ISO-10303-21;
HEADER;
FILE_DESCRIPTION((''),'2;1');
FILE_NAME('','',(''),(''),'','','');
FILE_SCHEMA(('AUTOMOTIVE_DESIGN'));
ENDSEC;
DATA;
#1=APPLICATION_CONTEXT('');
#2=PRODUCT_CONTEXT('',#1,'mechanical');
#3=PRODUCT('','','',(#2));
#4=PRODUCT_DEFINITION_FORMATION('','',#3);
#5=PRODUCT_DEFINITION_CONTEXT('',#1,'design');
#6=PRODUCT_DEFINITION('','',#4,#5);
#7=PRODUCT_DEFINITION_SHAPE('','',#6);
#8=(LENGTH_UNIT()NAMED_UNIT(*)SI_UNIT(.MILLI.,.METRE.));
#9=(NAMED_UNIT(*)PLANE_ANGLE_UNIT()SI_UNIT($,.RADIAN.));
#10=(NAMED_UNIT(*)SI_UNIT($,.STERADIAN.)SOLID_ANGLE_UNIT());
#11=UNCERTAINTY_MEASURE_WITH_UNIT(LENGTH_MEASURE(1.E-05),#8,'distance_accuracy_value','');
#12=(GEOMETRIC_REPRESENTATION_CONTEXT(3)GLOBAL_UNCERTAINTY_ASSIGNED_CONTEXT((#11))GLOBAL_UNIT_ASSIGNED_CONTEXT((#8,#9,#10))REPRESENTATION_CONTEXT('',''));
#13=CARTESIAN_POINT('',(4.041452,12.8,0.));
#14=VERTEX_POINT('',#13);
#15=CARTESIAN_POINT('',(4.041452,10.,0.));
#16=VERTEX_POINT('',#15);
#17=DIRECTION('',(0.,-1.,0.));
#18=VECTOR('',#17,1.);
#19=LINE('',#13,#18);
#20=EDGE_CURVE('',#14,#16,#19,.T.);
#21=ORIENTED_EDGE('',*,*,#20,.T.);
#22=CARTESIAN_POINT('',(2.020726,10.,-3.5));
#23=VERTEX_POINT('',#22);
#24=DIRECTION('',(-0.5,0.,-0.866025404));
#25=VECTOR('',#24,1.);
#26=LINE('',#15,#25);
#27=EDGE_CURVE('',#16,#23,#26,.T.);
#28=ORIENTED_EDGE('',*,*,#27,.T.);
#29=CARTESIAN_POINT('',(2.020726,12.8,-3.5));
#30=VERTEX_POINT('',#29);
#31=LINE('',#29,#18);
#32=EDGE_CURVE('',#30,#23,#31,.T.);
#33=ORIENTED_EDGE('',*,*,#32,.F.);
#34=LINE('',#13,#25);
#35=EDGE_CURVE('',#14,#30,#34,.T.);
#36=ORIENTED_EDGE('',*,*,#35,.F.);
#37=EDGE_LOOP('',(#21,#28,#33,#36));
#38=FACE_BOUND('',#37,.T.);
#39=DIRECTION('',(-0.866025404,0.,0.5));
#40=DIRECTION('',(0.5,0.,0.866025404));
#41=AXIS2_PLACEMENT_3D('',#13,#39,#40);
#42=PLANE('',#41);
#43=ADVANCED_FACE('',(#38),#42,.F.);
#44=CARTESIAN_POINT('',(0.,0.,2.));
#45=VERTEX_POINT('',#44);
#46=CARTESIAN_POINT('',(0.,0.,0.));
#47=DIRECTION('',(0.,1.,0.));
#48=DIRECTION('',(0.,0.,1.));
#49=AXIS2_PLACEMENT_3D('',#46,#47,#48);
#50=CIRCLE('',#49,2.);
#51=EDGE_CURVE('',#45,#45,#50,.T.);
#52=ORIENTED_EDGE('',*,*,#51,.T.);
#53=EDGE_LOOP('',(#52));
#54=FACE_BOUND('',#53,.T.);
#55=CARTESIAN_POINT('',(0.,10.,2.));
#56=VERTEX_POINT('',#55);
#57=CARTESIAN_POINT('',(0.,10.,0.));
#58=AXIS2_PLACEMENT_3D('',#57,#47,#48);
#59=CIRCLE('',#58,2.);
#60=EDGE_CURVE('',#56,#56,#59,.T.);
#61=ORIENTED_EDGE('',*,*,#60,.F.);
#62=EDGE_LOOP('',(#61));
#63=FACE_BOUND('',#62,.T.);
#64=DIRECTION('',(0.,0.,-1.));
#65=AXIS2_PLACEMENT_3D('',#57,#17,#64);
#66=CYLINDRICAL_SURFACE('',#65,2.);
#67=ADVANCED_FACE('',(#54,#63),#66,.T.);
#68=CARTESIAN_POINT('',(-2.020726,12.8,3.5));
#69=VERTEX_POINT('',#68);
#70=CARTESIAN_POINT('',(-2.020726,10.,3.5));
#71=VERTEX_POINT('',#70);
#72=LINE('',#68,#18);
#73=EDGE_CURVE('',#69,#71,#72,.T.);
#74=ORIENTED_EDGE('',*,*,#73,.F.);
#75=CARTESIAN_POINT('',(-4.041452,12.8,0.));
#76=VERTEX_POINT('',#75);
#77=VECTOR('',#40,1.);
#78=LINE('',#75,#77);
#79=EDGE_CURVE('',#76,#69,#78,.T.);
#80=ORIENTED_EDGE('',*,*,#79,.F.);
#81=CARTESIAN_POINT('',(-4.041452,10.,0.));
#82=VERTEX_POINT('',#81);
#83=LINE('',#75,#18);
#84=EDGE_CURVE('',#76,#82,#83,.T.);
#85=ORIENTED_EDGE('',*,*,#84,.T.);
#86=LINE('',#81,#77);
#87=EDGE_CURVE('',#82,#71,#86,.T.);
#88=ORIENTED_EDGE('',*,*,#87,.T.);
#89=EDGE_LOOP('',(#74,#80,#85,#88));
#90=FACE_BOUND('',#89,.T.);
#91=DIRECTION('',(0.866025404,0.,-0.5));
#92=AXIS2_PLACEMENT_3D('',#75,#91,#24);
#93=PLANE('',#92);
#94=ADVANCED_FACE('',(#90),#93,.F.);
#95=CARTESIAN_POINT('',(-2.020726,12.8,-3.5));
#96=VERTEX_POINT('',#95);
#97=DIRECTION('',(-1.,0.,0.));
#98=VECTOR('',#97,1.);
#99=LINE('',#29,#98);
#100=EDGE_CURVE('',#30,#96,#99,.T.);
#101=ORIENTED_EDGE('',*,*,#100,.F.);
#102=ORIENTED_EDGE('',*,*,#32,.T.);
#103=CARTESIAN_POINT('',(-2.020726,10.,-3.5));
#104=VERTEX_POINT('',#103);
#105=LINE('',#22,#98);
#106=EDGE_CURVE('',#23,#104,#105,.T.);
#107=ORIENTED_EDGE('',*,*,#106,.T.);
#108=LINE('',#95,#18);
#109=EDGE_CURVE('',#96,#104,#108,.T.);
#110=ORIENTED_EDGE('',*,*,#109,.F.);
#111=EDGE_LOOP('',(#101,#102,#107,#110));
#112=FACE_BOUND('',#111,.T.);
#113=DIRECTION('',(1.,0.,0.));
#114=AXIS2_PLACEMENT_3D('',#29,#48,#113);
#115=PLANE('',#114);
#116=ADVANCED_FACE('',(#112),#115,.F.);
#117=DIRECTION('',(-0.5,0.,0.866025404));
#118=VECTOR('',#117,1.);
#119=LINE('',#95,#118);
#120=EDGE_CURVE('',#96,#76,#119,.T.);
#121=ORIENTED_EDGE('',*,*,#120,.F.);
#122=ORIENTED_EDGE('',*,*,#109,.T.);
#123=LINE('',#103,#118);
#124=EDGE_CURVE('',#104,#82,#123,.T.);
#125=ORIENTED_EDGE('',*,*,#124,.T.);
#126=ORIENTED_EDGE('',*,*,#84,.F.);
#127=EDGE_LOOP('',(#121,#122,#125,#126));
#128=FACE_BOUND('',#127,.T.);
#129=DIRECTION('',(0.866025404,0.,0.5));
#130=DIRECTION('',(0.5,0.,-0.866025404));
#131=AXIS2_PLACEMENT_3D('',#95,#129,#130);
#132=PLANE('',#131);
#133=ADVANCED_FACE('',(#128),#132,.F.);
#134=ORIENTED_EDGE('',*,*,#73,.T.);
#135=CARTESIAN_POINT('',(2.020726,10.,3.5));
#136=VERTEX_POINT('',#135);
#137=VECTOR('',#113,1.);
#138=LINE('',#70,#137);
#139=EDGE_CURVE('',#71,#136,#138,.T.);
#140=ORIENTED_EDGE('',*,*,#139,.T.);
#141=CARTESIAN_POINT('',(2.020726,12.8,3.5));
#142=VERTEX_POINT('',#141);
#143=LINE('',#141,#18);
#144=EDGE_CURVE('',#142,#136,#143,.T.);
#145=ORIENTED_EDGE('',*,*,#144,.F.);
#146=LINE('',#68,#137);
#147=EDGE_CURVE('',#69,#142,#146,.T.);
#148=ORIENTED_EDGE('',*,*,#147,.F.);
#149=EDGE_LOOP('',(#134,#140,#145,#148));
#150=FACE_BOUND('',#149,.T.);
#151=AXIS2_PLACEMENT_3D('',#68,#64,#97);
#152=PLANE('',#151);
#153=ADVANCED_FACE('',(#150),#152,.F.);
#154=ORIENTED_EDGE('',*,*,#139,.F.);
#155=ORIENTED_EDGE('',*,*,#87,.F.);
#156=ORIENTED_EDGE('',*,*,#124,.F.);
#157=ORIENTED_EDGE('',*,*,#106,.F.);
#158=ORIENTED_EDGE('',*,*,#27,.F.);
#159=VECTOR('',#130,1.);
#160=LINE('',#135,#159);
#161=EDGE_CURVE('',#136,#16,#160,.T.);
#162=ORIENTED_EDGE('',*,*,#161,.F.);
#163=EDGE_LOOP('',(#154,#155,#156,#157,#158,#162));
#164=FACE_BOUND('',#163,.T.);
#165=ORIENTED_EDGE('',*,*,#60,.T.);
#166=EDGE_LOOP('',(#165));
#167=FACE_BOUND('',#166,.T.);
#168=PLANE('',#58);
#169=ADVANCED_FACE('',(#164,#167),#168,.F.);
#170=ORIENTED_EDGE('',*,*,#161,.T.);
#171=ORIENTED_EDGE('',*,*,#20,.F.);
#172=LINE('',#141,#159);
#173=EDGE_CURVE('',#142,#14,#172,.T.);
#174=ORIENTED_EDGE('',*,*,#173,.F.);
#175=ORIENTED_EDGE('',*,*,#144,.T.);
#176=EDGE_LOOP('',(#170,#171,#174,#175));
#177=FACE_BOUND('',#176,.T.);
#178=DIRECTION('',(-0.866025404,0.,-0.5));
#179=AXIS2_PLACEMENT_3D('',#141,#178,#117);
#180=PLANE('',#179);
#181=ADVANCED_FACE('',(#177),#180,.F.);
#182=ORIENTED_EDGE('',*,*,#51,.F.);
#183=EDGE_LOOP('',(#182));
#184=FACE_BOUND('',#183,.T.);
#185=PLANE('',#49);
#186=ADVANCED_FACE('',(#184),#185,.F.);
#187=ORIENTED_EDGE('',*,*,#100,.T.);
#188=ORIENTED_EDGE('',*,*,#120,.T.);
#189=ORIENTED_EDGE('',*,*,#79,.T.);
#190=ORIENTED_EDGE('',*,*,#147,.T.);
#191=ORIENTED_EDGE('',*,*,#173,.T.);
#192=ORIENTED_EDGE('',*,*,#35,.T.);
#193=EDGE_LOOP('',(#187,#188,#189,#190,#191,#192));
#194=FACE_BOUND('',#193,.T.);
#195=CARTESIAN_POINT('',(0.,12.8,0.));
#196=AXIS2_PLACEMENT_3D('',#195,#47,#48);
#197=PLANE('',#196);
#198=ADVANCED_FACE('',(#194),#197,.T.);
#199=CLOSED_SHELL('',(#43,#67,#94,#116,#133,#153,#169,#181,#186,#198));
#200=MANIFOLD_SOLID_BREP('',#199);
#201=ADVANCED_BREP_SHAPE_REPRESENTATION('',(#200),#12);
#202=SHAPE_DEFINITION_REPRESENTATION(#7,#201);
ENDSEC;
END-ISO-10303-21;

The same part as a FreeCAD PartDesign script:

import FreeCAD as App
import Part
import Sketcher
from FreeCAD import Vector
Q = App.Units.Quantity


def add_polygon(sketch, points):
    """Adds a closed chain of lines whose ends are joined by coincident constraints."""
    first, n = sketch.GeometryCount, len(points)
    for a, b in zip(points, points[1:] + points[:1]):
        sketch.addGeometry(Part.LineSegment(App.Vector(*a, 0), App.Vector(*b, 0)), False)
    for i in range(n):
        sketch.addConstraint(Sketcher.Constraint("Coincident", first + i, 2, first + (i + 1) % n, 1))

doc = App.newDocument("Part")
params = doc.addObject("Spreadsheet::Sheet", "Params")
for row, (alias, value) in enumerate([
    ("sketch1_diameter", "4 mm"),
    ("pad1_length", "10 mm"),
    ("pad2_length", "2.8 mm"),
], start=1):
    params.set(f"A{row}", alias)
    params.set(f"B{row}", "=" + value)
    params.setAlias(f"B{row}", alias)

body = doc.addObject("PartDesign::Body", "Body")

sketch1 = doc.addObject("Sketcher::SketchObject", "Sketch")
body.addObject(sketch1)
sketch1.AttachmentSupport = (doc.XZ_Plane, [""])
sketch1.MapMode = "FlatFace"
sketch1.addGeometry(Part.Circle(Vector(0, 0, 0), Vector(0, 0, 1), 2), False)
sketch1.addConstraint(Sketcher.Constraint("Coincident", 0, 3, -1, 1))
sketch1.addConstraint(Sketcher.Constraint("Diameter", 0, Q("4 mm")))
sketch1.setExpression("Constraints[1]", "Params.sketch1_diameter")
pad1 = doc.addObject("PartDesign::Pad", "Pad")
body.addObject(pad1)
pad1.Profile = sketch1
pad1.setExpression("Length", "Params.pad1_length")
pad1.Reversed = True

sketch2 = doc.addObject("Sketcher::SketchObject", "Sketch001")
body.addObject(sketch2)
sketch2.AttachmentSupport = (doc.XZ_Plane, [""])
sketch2.MapMode = "FlatFace"
sketch2.AttachmentOffset = App.Placement(Vector(0, 0, -10), App.Rotation())
add_polygon(sketch2, [(4, 0), (2, -3.5), (-2, -3.5), (-4, 0), (-2, 3.5), (2, 3.5)])
sketch2.addConstraint(Sketcher.Constraint("Horizontal", 1))
sketch2.addConstraint(Sketcher.Constraint("Horizontal", 4))
sketch2.addConstraint(Sketcher.Constraint("Symmetric", 0, 2, 3, 2, -1, 1))
sketch2.addConstraint(Sketcher.Constraint("Symmetric", 2, 2, 5, 2, -1, 1))
sketch2.addConstraint(Sketcher.Constraint("PointOnObject", 2, 2, -1))
sketch2.addConstraint(Sketcher.Constraint("Parallel", 2, 5))
sketch2.addConstraint(Sketcher.Constraint("Vertical", 1, 2, 3, 2))
sketch2.addConstraint(Sketcher.Constraint("Angle", 0, Q("-120 deg")))
sketch2.addConstraint(Sketcher.Constraint("DistanceY", 1, 2, 3, 2, Q("7 mm")))
sketch2.addConstraint(Sketcher.Constraint("DistanceX", 1, 2, 1, 1, Q("4.041452 mm")))
pad2 = doc.addObject("PartDesign::Pad", "Pad001")
body.addObject(pad2)
pad2.Profile = sketch2
pad2.setExpression("Length", "Params.pad2_length")
pad2.Reversed = True

doc.recompute()
